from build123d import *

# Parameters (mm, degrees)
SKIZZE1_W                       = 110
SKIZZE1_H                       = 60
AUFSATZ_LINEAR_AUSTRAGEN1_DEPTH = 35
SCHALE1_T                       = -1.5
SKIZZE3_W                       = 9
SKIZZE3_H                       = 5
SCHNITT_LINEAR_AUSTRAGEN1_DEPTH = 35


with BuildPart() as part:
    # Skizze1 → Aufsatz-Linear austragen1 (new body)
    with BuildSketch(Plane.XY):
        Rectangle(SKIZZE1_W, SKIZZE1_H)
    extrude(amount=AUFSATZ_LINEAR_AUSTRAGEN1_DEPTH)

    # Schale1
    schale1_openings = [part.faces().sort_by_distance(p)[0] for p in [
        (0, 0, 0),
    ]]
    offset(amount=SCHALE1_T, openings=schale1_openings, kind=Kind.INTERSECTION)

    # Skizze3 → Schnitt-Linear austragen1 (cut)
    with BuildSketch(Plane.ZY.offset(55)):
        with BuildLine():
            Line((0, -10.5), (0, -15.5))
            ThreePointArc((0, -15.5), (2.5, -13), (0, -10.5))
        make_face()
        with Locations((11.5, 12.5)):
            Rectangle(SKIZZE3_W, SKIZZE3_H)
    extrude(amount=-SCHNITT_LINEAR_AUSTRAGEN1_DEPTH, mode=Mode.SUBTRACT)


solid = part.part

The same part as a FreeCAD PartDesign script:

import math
import FreeCAD as App
import Part
import Sketcher
from FreeCAD import Vector
Q = App.Units.Quantity


def faces_at(feature, points):
    """Names of the faces that lie closest to the given points."""
    faces = feature.Shape.Faces
    near = lambda p: min(range(len(faces)), key=lambda i: faces[i].distToShape(Part.Vertex(*p))[0])
    return sorted({f"Face{near(p) + 1}" for p in points})


def add_polygon(sketch, points):
    """Adds a closed chain of lines whose ends are joined by coincident constraints."""
    first, n = sketch.GeometryCount, len(points)
    for a, b in zip(points, points[1:] + points[:1]):
        sketch.addGeometry(Part.LineSegment(App.Vector(*a, 0), App.Vector(*b, 0)), False)
    for i in range(n):
        sketch.addConstraint(Sketcher.Constraint("Coincident", first + i, 2, first + (i + 1) % n, 1))

doc = App.newDocument("Part")
params = doc.addObject("Spreadsheet::Sheet", "Params")
for row, (alias, value) in enumerate([
    ("sketch1_width", "110 mm"),
    ("sketch1_height", "60 mm"),
    ("pad1_length", "35 mm"),
    ("thickness_wall", "1.5 mm"),
    ("sketch2_radius", "2.5 mm"),
    ("sketch2_height", "9 mm"),
    ("pocket1_length", "35 mm"),
], start=1):
    params.set(f"A{row}", alias)
    params.set(f"B{row}", "=" + value)
    params.setAlias(f"B{row}", alias)

body = doc.addObject("PartDesign::Body", "Body")

sketch1 = doc.addObject("Sketcher::SketchObject", "Sketch")
body.addObject(sketch1)
sketch1.AttachmentSupport = (doc.XY_Plane, [""])
sketch1.MapMode = "FlatFace"
add_polygon(sketch1, [(-55, 30), (-55, -30), (55, -30), (55, 30)])
sketch1.addConstraint(Sketcher.Constraint("Vertical", 0))
sketch1.addConstraint(Sketcher.Constraint("Horizontal", 1))
sketch1.addConstraint(Sketcher.Constraint("Vertical", 2))
sketch1.addConstraint(Sketcher.Constraint("Horizontal", 3))
sketch1.addConstraint(Sketcher.Constraint("Symmetric", 0, 2, 2, 2, -1, 1))
sketch1.addConstraint(Sketcher.Constraint("DistanceX", 1, 1, 1, 2, Q("110 mm")))
sketch1.addConstraint(Sketcher.Constraint("DistanceY", 0, 2, 0, 1, Q("60 mm")))
sketch1.setExpression("Constraints[9]", "Params.sketch1_width")
sketch1.setExpression("Constraints[10]", "Params.sketch1_height")
pad1 = doc.addObject("PartDesign::Pad", "Pad")
body.addObject(pad1)
pad1.Profile = sketch1
pad1.setExpression("Length", "Params.pad1_length")
doc.recompute()

thickness = doc.addObject("PartDesign::Thickness", "Thickness")
body.addObject(thickness)
thickness.Base = (pad1, faces_at(pad1, [(0, 0, 0)]))
thickness.setExpression("Value", "Params.thickness_wall")
thickness.Reversed = True
thickness.Join = "Intersection"

sketch2 = doc.addObject("Sketcher::SketchObject", "Sketch001")
body.addObject(sketch2)
sketch2.AttachmentSupport = (doc.YZ_Plane, [""])
sketch2.MapMode = "FlatFace"
sketch2.AttachmentOffset = App.Placement(Vector(0, 0, -55), App.Rotation())
sketch2.addGeometry(Part.LineSegment(Vector(-10.5, 0, 0), Vector(-15.5, 0, 0)), False)
sketch2.addGeometry(Part.ArcOfCircle(Part.Circle(Vector(-13, 0, 0), Vector(0, 0, 1), 2.5), math.radians(0), math.radians(180)), False)
add_polygon(sketch2, [(15, 7), (10, 7), (10, 16), (15, 16)])
sketch2.addConstraint(Sketcher.Constraint("Coincident", 0, 1, 1, 1))
sketch2.addConstraint(Sketcher.Constraint("Coincident", 1, 2, 0, 2))
sketch2.addConstraint(Sketcher.Constraint("Horizontal", 0))
sketch2.addConstraint(Sketcher.Constraint("Horizontal", 2))
sketch2.addConstraint(Sketcher.Constraint("Vertical", 3))
sketch2.addConstraint(Sketcher.Constraint("Horizontal", 4))
sketch2.addConstraint(Sketcher.Constraint("Vertical", 5))
sketch2.addConstraint(Sketcher.Constraint("PointOnObject", 1, 3, -1))
sketch2.addConstraint(Sketcher.Constraint("PointOnObject", 0, 1, -1))
sketch2.addConstraint(Sketcher.Constraint("Equal", 0, 2))
sketch2.addConstraint(Sketcher.Constraint("Radius", 1, Q("2.5 mm")))
sketch2.addConstraint(Sketcher.Constraint("DistanceY", 3, 1, 3, 2, Q("9 mm")))
sketch2.addConstraint(Sketcher.Constraint("DistanceX", 1, 3, -1, 1, Q("13 mm")))
sketch2.addConstraint(Sketcher.Constraint("DistanceX", -1, 1, 2, 2, Q("10 mm")))
sketch2.addConstraint(Sketcher.Constraint("DistanceY", -1, 1, 2, 2, Q("7 mm")))
sketch2.setExpression("Constraints[14]", "Params.sketch2_radius")
sketch2.setExpression("Constraints[15]", "Params.sketch2_height")
pocket1 = doc.addObject("PartDesign::Pocket", "Pocket")
body.addObject(pocket1)
pocket1.Profile = sketch2
pocket1.setExpression("Length", "Params.pocket1_length")
pocket1.Reversed = True

doc.recompute()
